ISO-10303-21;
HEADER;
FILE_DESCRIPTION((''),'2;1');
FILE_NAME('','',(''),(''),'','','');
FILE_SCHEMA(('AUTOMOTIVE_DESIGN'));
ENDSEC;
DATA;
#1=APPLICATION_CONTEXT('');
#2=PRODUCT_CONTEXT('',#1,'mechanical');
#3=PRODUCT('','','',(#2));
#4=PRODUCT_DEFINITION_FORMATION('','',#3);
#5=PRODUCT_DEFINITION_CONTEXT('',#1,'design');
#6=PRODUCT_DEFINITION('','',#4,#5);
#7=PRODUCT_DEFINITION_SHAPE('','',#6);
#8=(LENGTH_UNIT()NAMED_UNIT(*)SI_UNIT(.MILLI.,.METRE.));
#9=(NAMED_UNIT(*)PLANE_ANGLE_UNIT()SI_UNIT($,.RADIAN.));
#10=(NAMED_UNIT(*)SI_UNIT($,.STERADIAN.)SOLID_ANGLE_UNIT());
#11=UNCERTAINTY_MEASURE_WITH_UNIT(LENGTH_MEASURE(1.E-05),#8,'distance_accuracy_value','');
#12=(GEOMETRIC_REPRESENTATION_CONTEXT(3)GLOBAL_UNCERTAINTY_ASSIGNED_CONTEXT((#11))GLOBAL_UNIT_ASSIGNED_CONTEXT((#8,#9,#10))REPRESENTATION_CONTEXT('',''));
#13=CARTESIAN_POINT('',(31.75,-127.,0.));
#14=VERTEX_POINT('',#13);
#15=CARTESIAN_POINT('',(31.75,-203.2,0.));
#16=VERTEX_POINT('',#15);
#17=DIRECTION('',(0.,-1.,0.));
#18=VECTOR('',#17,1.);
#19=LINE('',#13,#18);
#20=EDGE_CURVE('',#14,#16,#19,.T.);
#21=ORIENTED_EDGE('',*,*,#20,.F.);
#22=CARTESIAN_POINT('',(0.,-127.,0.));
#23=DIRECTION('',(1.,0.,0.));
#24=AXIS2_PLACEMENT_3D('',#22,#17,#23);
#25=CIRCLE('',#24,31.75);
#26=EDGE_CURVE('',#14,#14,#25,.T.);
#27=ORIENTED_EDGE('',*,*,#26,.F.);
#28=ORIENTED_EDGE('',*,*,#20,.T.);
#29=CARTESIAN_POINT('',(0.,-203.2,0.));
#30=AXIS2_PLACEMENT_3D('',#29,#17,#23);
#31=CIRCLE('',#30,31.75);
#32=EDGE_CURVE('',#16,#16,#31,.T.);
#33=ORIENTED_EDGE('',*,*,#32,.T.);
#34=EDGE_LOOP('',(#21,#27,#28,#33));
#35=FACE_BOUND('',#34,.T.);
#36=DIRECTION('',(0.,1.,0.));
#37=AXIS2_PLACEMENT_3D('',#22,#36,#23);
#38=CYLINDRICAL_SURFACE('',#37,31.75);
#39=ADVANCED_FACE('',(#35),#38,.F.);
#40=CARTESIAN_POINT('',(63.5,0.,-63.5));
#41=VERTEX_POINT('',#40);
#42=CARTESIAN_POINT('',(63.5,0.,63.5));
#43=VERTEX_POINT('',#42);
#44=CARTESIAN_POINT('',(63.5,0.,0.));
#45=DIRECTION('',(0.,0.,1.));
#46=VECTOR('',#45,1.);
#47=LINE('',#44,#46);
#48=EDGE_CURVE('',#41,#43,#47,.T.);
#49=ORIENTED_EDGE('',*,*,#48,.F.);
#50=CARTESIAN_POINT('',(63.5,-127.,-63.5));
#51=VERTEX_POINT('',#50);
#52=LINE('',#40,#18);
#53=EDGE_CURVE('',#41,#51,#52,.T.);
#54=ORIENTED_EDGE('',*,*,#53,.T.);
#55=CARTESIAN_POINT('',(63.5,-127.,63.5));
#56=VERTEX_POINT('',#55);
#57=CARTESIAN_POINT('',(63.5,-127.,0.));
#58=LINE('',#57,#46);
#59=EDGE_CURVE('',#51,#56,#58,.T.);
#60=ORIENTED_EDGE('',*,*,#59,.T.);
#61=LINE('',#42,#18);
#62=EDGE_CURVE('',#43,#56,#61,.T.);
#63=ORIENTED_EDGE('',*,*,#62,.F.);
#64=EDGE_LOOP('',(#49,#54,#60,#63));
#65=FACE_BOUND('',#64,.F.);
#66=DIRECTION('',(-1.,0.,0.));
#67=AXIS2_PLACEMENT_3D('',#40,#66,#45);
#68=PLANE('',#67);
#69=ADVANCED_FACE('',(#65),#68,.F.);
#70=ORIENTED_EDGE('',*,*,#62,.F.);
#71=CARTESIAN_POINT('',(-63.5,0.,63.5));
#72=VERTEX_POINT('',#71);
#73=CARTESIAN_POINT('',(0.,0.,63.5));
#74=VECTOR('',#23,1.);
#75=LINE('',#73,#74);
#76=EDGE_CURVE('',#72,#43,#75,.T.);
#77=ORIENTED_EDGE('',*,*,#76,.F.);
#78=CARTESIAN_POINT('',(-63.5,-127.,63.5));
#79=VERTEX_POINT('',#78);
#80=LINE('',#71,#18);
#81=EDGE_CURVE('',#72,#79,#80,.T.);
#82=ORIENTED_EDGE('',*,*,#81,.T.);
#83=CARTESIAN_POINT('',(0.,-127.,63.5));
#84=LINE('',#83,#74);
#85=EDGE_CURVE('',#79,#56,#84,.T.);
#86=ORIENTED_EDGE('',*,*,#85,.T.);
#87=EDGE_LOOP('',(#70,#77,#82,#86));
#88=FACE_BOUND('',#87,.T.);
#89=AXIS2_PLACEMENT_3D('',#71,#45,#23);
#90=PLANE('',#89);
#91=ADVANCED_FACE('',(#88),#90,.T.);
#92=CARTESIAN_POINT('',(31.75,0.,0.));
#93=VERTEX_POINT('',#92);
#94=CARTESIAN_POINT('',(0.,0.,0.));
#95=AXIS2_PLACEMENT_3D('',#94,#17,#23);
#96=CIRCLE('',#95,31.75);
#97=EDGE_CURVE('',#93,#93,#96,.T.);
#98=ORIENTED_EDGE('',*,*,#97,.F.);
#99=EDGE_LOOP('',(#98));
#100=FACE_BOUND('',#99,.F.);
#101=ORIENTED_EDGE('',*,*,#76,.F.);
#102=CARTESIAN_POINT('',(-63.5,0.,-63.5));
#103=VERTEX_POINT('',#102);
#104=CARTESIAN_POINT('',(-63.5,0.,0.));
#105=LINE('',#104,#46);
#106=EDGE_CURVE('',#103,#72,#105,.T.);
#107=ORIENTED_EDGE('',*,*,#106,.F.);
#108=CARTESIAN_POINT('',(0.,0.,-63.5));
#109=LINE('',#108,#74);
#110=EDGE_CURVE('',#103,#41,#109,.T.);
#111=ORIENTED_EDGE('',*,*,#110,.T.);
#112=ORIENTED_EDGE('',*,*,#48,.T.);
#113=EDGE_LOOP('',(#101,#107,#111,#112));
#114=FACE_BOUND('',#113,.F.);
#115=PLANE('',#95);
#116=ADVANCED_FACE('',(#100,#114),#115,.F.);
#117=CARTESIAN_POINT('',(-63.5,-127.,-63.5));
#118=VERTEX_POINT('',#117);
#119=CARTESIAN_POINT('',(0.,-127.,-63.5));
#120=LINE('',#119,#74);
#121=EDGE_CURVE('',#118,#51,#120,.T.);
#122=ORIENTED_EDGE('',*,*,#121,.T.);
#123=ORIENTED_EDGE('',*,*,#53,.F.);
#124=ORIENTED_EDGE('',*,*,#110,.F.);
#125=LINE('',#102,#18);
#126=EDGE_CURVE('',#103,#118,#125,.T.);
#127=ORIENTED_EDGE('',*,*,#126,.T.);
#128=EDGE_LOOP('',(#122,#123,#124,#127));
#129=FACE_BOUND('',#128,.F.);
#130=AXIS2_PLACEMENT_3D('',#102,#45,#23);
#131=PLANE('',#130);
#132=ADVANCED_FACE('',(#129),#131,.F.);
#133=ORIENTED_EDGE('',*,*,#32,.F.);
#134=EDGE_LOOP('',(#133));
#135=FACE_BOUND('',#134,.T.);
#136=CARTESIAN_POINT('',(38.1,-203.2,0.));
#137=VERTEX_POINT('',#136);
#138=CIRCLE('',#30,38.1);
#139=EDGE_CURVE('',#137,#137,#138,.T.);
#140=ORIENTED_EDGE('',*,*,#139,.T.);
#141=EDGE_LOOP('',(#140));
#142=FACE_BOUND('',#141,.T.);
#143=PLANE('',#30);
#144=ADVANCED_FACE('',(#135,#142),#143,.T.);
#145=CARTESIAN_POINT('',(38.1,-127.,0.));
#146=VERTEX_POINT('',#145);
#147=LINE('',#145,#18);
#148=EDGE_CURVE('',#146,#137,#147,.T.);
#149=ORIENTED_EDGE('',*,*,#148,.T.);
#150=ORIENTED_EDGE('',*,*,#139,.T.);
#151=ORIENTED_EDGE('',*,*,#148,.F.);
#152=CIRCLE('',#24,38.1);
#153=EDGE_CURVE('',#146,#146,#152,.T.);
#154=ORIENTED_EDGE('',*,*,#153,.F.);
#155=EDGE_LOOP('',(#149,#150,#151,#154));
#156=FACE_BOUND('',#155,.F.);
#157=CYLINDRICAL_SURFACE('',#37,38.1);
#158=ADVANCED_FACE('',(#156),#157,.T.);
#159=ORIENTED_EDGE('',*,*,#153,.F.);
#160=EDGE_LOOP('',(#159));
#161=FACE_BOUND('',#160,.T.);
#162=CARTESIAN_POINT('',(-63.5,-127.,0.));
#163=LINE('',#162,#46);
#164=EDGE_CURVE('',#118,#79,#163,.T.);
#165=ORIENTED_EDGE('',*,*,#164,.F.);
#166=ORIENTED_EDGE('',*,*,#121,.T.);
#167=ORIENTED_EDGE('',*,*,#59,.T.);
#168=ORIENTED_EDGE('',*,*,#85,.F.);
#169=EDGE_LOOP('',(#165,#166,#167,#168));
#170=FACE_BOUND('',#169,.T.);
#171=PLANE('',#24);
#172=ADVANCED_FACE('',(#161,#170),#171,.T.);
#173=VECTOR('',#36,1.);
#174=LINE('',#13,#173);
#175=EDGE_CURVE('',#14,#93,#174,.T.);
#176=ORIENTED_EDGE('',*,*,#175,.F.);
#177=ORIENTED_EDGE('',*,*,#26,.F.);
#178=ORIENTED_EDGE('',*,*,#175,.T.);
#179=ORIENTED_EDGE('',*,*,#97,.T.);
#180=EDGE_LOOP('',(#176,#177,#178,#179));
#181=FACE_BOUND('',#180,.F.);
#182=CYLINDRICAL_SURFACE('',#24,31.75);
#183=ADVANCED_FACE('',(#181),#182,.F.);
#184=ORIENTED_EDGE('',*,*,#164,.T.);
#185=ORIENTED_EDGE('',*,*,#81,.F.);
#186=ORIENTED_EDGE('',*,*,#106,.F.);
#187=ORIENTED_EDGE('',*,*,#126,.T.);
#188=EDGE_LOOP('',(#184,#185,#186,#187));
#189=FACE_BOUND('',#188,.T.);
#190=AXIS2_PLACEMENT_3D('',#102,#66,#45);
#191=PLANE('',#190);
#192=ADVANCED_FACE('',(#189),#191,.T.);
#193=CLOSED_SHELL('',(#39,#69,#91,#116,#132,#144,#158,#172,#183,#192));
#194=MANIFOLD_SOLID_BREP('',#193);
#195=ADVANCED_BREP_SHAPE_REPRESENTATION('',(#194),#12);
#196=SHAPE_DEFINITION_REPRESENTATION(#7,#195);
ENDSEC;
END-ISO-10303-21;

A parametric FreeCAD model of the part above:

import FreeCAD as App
import Part
import Sketcher

V = App.Vector
Q = App.Units.Quantity


def add_polygon(sketch, points):
    """Adds a closed chain of lines whose ends are joined by coincident constraints."""
    first, n = sketch.GeometryCount, len(points)
    for a, b in zip(points, points[1:] + points[:1]):
        sketch.addGeometry(Part.LineSegment(App.Vector(*a, 0), App.Vector(*b, 0)), False)
    for i in range(n):
        sketch.addConstraint(Sketcher.Constraint("Coincident", first + i, 2, first + (i + 1) % n, 1))

doc = App.newDocument("Part")
params = doc.addObject("Spreadsheet::Sheet", "Params")
for row, (alias, value) in enumerate([
    ("sketch1_width", "5 in"),
    ("pad1_length", "5 in"),
    ("sketch2_diameter", "2.5 in"),
    ("sketch3_diameter", "3 in"),
    ("sketch3_diameter2", "2.5 in"),
    ("pad2_length", "3 in"),
], start=1):
    params.set(f"A{row}", alias)
    params.set(f"B{row}", "=" + value)
    params.setAlias(f"B{row}", alias)

body = doc.addObject("PartDesign::Body", "Body")

# Sketch on XZ plane
sketch1 = doc.addObject("Sketcher::SketchObject", "Sketch")
body.addObject(sketch1)
sketch1.AttachmentSupport = (doc.XZ_Plane, [""])
sketch1.MapMode = "FlatFace"
add_polygon(sketch1, [(-64, 64), (-64, -64), (64, -64), (64, 64)])  # lines 0-3
sketch1.addConstraint([
    Sketcher.Constraint("Vertical", 0),
    Sketcher.Constraint("Horizontal", 1),
    Sketcher.Constraint("Vertical", 2),
    Sketcher.Constraint("Horizontal", 3),
    Sketcher.Constraint("Symmetric", 0, 2, 2, 2, -1, 1),
    Sketcher.Constraint("Equal", 3, 0),
    Sketcher.Constraint("DistanceX", 1, 1, 1, 2, Q("5 in")),
])
sketch1.setExpression("Constraints[10]", "Params.sketch1_width")
pad1 = doc.addObject("PartDesign::Pad", "Pad")
body.addObject(pad1)
pad1.Profile = sketch1
pad1.setExpression("Length", "Params.pad1_length")

# Sketch on XZ plane
sketch2 = doc.addObject("Sketcher::SketchObject", "Sketch001")
body.addObject(sketch2)
sketch2.AttachmentSupport = (doc.XZ_Plane, [""])
sketch2.MapMode = "FlatFace"
sketch2.AttachmentOffset = App.Placement(V(0, 0, 5 * 25.4), App.Rotation())
sketch2.addGeometry(Part.Circle(V(0, 0, 0), V(0, 0, 1), 32), False)
sketch2.addConstraint([
    Sketcher.Constraint("Coincident", 0, 3, -1, 1),
    Sketcher.Constraint("Diameter", 0, Q("2.5 in")),
])
sketch2.setExpression("Constraints[1]", "Params.sketch2_diameter")
pocket1 = doc.addObject("PartDesign::Pocket", "Pocket")
body.addObject(pocket1)
pocket1.Profile = sketch2
pocket1.Type = "ThroughAll"

# Sketch on XZ plane
sketch3 = doc.addObject("Sketcher::SketchObject", "Sketch002")
body.addObject(sketch3)
sketch3.AttachmentSupport = (doc.XZ_Plane, [""])
sketch3.MapMode = "FlatFace"
sketch3.AttachmentOffset = App.Placement(V(0, 0, 5 * 25.4), App.Rotation())
sketch3.addGeometry([
    Part.Circle(V(0, 0, 0), V(0, 0, 1), 38),
    Part.Circle(V(0, 0, 0), V(0, 0, 1), 32),
], False)
sketch3.addConstraint([
    Sketcher.Constraint("Coincident", 0, 3, -1, 1),
    Sketcher.Constraint("Coincident", 1, 3, -1, 1),
    Sketcher.Constraint("Diameter", 0, Q("3 in")),
    Sketcher.Constraint("Diameter", 1, Q("2.5 in")),
])
sketch3.setExpression("Constraints[2]", "Params.sketch3_diameter")
sketch3.setExpression("Constraints[3]", "Params.sketch3_diameter2")
pad2 = doc.addObject("PartDesign::Pad", "Pad001")
body.addObject(pad2)
pad2.Profile = sketch3
pad2.setExpression("Length", "Params.pad2_length")

doc.recompute()
